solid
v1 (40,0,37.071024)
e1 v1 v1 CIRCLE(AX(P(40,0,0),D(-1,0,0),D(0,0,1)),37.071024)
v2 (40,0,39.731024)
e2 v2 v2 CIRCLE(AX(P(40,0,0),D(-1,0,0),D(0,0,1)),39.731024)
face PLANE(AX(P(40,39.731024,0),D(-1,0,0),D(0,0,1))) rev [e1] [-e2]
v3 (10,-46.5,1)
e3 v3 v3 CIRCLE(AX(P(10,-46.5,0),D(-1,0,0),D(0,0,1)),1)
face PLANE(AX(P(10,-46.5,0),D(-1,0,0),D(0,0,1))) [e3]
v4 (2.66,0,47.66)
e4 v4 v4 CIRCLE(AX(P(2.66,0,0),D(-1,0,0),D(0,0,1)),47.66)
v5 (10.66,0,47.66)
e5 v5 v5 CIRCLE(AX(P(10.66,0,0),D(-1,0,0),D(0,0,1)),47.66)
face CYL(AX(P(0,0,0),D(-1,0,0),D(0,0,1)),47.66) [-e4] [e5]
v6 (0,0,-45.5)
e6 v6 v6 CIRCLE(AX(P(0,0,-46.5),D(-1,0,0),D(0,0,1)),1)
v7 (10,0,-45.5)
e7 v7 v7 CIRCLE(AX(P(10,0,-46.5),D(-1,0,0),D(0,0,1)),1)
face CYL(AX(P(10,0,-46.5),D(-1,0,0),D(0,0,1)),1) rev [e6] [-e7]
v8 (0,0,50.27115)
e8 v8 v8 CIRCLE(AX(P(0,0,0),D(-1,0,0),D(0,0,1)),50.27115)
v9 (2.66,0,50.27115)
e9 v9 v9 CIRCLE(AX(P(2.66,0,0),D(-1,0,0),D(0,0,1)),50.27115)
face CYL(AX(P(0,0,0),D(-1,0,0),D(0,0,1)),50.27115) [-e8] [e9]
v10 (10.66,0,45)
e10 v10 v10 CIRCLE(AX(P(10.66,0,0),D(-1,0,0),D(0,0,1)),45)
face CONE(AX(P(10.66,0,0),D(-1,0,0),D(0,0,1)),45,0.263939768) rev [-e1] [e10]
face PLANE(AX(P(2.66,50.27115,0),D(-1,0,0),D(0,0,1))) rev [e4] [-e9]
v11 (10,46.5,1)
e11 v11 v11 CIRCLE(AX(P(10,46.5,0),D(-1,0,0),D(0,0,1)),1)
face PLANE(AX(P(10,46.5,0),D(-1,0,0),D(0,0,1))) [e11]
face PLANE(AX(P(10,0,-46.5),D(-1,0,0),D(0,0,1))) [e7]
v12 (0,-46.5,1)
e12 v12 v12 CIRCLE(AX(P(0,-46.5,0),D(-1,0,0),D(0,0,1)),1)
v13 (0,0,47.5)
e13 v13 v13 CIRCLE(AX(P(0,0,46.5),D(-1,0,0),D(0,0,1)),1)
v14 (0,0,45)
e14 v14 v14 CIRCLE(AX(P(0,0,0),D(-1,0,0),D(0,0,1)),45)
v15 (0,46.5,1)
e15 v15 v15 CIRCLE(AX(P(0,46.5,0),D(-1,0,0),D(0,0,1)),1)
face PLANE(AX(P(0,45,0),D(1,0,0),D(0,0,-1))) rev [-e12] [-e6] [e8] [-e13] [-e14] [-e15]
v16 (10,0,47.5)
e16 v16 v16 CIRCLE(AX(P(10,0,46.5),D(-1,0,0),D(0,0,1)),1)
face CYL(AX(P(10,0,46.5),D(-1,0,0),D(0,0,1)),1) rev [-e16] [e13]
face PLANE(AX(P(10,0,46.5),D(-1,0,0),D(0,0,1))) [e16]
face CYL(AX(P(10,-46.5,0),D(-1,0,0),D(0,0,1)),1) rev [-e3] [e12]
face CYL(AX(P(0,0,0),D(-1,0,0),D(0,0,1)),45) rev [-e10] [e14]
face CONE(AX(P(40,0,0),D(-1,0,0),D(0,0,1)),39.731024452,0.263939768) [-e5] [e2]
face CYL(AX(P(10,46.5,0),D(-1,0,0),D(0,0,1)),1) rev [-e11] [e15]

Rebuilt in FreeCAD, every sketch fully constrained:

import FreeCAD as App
import Part
import Sketcher

V = App.Vector
Q = App.Units.Quantity

doc = App.newDocument("Part")
body = doc.addObject("PartDesign::Body", "Body")

# Sketch on XY plane
sketch1 = body.newObject("Sketcher::SketchObject", "Sketch")
sketch1.AttachmentSupport = (doc.getObject("XY_Plane"), [""])
sketch1.MapMode = "FlatFace"
sketch1.addGeometry(Part.LineSegment(V(0, 50.3, 0), V(0, 45, 0)), False)
sketch1.addGeometry(Part.LineSegment(V(0, 45, 0), V(10.7, 45, 0)), False)
sketch1.addGeometry(Part.LineSegment(V(10.7, 45, 0), V(40, 37.1, 0)), False)
sketch1.addGeometry(Part.LineSegment(V(40, 37.1, 0), V(40, 39.7, 0)), False)
sketch1.addGeometry(Part.LineSegment(V(40, 39.7, 0), V(10.7, 47.7, 0)), False)
sketch1.addGeometry(Part.LineSegment(V(10.7, 47.7, 0), V(2.7, 47.7, 0)), False)
sketch1.addGeometry(Part.LineSegment(V(2.7, 47.7, 0), V(2.7, 50.3, 0)), False)
sketch1.addGeometry(Part.LineSegment(V(2.7, 50.3, 0), V(0, 50.3, 0)), False)
sketch1.addConstraint(Sketcher.Constraint("Coincident", 0, 2, 1, 1))
sketch1.addConstraint(Sketcher.Constraint("Coincident", 1, 2, 2, 1))
sketch1.addConstraint(Sketcher.Constraint("Coincident", 2, 2, 3, 1))
sketch1.addConstraint(Sketcher.Constraint("Coincident", 3, 2, 4, 1))
sketch1.addConstraint(Sketcher.Constraint("Coincident", 4, 2, 5, 1))
sketch1.addConstraint(Sketcher.Constraint("Coincident", 5, 2, 6, 1))
sketch1.addConstraint(Sketcher.Constraint("Coincident", 6, 2, 7, 1))
sketch1.addConstraint(Sketcher.Constraint("Coincident", 7, 2, 0, 1))
sketch1.addConstraint(Sketcher.Constraint("Vertical", 0))
sketch1.addConstraint(Sketcher.Constraint("Horizontal", 1))
sketch1.addConstraint(Sketcher.Constraint("Vertical", 3))
sketch1.addConstraint(Sketcher.Constraint("Horizontal", 5))
sketch1.addConstraint(Sketcher.Constraint("Vertical", 6))
sketch1.addConstraint(Sketcher.Constraint("Horizontal", 7))
sketch1.addConstraint(Sketcher.Constraint("PointOnObject", 0, 2, -2))
sketch1.addConstraint(Sketcher.Constraint("Parallel", 2, 4))
sketch1.addConstraint(Sketcher.Constraint("Vertical", 1, 2, 4, 2))
sketch1.addConstraint(Sketcher.Constraint("Equal", 7, 3))
sketch1.addConstraint(Sketcher.Constraint("DistanceX", 5, 2, 5, 1, Q("8 mm")))
sketch1.addConstraint(Sketcher.Constraint("DistanceY", -1, 1, 0, 2, Q("45 mm")))
sketch1.addConstraint(Sketcher.Constraint("DistanceX", -1, 1, 2, 2, Q("40 mm")))
sketch1.addConstraint(Sketcher.Constraint("DistanceX", 1, 1, 1, 2, Q("10.66 mm")))
sketch1.addConstraint(Sketcher.Constraint("DistanceY", 0, 2, 0, 1, Q("5.27115 mm")))
sketch1.addConstraint(Sketcher.Constraint("Distance", 2, Q("30.392503 mm")))
revolution = body.newObject("PartDesign::Revolution", "Revolution")
revolution.Profile = sketch1
revolution.ReferenceAxis = (sketch1, ["H_Axis"])
revolution.Angle = 360

# Sketch on YZ plane
sketch2 = body.newObject("Sketcher::SketchObject", "Sketch001")
sketch2.AttachmentSupport = (doc.getObject("YZ_Plane"), [""])
sketch2.MapMode = "FlatFace"
sketch2.addGeometry(Part.Circle(V(-46.5, 0, 0), V(0, 0, 1), 1), False)
sketch2.addGeometry(Part.Circle(V(0, -46.5, 0), V(0, 0, 1), 1), False)
sketch2.addGeometry(Part.Circle(V(46.5, 0, 0), V(0, 0, 1), 1), False)
sketch2.addGeometry(Part.Circle(V(0, 46.5, 0), V(0, 0, 1), 1), False)
sketch2.addConstraint(Sketcher.Constraint("Equal", 0, 1))
sketch2.addConstraint(Sketcher.Constraint("Equal", 1, 2))
sketch2.addConstraint(Sketcher.Constraint("Equal", 2, 3))
sketch2.addConstraint(Sketcher.Constraint("Symmetric", 0, 3, 2, 3, -1, 1))
sketch2.addConstraint(Sketcher.Constraint("Symmetric", 1, 3, 3, 3, -1, 1))
sketch2.addConstraint(Sketcher.Constraint("PointOnObject", 0, 3, -1))
sketch2.addConstraint(Sketcher.Constraint("PointOnObject", 1, 3, -2))
sketch2.addConstraint(Sketcher.Constraint("Diameter", 0, Q("2 mm")))
sketch2.addConstraint(Sketcher.Constraint("DistanceX", 0, 3, 2, 3, Q("93 mm")))
sketch2.addConstraint(Sketcher.Constraint("DistanceY", 1, 3, 3, 3, Q("93 mm")))
pocket1 = body.newObject("PartDesign::Pocket", "Pocket")
pocket1.Profile = sketch2
pocket1.Length = 10
pocket1.Reversed = True

doc.recompute()
